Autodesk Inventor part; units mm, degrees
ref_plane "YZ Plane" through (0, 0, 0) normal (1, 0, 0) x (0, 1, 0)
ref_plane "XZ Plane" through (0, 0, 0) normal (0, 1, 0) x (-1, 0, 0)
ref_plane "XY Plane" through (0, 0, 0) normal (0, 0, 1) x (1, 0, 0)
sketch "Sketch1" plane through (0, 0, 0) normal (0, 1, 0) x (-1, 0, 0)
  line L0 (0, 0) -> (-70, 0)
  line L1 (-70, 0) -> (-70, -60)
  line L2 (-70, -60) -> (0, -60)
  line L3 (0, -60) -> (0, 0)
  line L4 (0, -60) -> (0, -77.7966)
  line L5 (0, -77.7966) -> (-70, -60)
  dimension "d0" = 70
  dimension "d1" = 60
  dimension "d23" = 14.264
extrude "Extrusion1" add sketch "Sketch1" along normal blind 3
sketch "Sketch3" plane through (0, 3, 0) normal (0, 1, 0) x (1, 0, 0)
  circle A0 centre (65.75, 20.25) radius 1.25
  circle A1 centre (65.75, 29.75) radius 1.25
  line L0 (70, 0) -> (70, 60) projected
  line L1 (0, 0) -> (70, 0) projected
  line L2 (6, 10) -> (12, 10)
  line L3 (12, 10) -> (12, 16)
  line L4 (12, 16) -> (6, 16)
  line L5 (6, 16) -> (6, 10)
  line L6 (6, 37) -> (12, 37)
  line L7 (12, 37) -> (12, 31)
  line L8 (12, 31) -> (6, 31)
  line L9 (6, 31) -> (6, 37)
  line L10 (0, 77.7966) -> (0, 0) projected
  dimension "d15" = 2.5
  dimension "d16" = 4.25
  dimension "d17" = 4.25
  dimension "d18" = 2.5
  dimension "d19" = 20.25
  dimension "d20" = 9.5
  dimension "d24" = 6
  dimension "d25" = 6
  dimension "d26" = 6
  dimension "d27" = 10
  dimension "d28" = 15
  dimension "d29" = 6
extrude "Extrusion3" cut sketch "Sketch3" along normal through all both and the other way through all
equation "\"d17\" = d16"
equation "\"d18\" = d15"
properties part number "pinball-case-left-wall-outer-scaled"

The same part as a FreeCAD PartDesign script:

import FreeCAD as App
import Part
import Sketcher
Q = App.Units.Quantity

doc = App.newDocument("Part")
body = doc.addObject("PartDesign::Body", "Body")

sketch1 = doc.addObject("Sketcher::SketchObject", "Sketch")
body.addObject(sketch1)
sketch1.AttachmentSupport = (doc.XZ_Plane, [""])
sketch1.MapMode = "FlatFace"
sketch1.addGeometry([
    Part.LineSegment(App.Vector(0, 0, 0), App.Vector(70, 0, 0)),
    Part.LineSegment(App.Vector(70, 0, 0), App.Vector(70, -60, 0)),
    Part.LineSegment(App.Vector(70, -60, 0), App.Vector(0, -78, 0)),
    Part.LineSegment(App.Vector(0, -78, 0), App.Vector(0, 0, 0)),
], False)
sketch1.addConstraint([
    Sketcher.Constraint("Coincident", 0, 2, 1, 1),
    Sketcher.Constraint("Coincident", 1, 2, 2, 1),
    Sketcher.Constraint("Coincident", 2, 2, 3, 1),
    Sketcher.Constraint("Coincident", 3, 2, 0, 1),
    Sketcher.Constraint("Horizontal", 0),
    Sketcher.Constraint("Vertical", 1),
    Sketcher.Constraint("Vertical", 3),
    Sketcher.Constraint("Coincident", 3, 2, -1, 1),
    Sketcher.Constraint("DistanceX", 0, 1, 0, 2, Q("70 mm")),
    Sketcher.Constraint("DistanceY", 1, 2, 1, 1, Q("60 mm")),
    Sketcher.Constraint("DistanceY", 3, 1, 3, 2, Q("77.7966 mm")),
])
pad1 = doc.addObject("PartDesign::Pad", "Pad")
body.addObject(pad1)
pad1.Profile = sketch1
pad1.Length = 3
pad1.Reversed = True

sketch2 = doc.addObject("Sketcher::SketchObject", "Sketch001")
body.addObject(sketch2)
sketch2.AttachmentSupport = (doc.XZ_Plane, [""])
sketch2.MapMode = "FlatFace"
sketch2.AttachmentOffset = App.Placement(App.Vector(0, 0, -3), App.Rotation())
sketch2.addGeometry([
    Part.Circle(App.Vector(65.8, -20.2, 0), App.Vector(0, 0, 1), 1.2),
    Part.Circle(App.Vector(65.8, -29.8, 0), App.Vector(0, 0, 1), 1.2),
    Part.LineSegment(App.Vector(6, -16, 0), App.Vector(6, -10, 0)),
    Part.LineSegment(App.Vector(6, -10, 0), App.Vector(12, -10, 0)),
    Part.LineSegment(App.Vector(12, -10, 0), App.Vector(12, -16, 0)),
    Part.LineSegment(App.Vector(12, -16, 0), App.Vector(6, -16, 0)),
    Part.LineSegment(App.Vector(12, -37, 0), App.Vector(6, -37, 0)),
    Part.LineSegment(App.Vector(6, -37, 0), App.Vector(6, -31, 0)),
    Part.LineSegment(App.Vector(6, -31, 0), App.Vector(12, -31, 0)),
    Part.LineSegment(App.Vector(12, -31, 0), App.Vector(12, -37, 0)),
], False)
sketch2.addConstraint([
    Sketcher.Constraint("Coincident", 2, 2, 3, 1),
    Sketcher.Constraint("Coincident", 3, 2, 4, 1),
    Sketcher.Constraint("Coincident", 4, 2, 5, 1),
    Sketcher.Constraint("Coincident", 5, 2, 2, 1),
    Sketcher.Constraint("Coincident", 6, 2, 7, 1),
    Sketcher.Constraint("Coincident", 7, 2, 8, 1),
    Sketcher.Constraint("Coincident", 8, 2, 9, 1),
    Sketcher.Constraint("Coincident", 9, 2, 6, 1),
    Sketcher.Constraint("Vertical", 2),
    Sketcher.Constraint("Horizontal", 3),
    Sketcher.Constraint("Vertical", 4),
    Sketcher.Constraint("Horizontal", 5),
    Sketcher.Constraint("Horizontal", 6),
    Sketcher.Constraint("Vertical", 7),
    Sketcher.Constraint("Horizontal", 8),
    Sketcher.Constraint("Vertical", 9),
    Sketcher.Constraint("Equal", 0, 1),
    Sketcher.Constraint("Vertical", 0, 3, 1, 3),
    Sketcher.Constraint("Vertical", 5, 2, 6, 2),
    Sketcher.Constraint("Vertical", 4, 2, 8, 2),
    Sketcher.Constraint("Equal", 8, 2),
    Sketcher.Constraint("Equal", 4, 7),
    Sketcher.Constraint("Diameter", 0, Q("2.5 mm")),
    Sketcher.Constraint("DistanceX", 3, 1, 3, 2, Q("6 mm")),
    Sketcher.Constraint("DistanceX", -1, 1, 2, 2, Q("6 mm")),
    Sketcher.Constraint("DistanceY", 2, 2, -1, 1, Q("10 mm")),
    Sketcher.Constraint("DistanceY", 7, 2, 5, 2, Q("15 mm")),
    Sketcher.Constraint("DistanceY", 1, 3, 0, 3, Q("9.5 mm")),
    Sketcher.Constraint("DistanceY", 0, 3, -1, 1, Q("20.25 mm")),
    Sketcher.Constraint("DistanceX", -1, 1, 0, 3, Q("65.75 mm")),
])
pocket1 = doc.addObject("PartDesign::Pocket", "Pocket")
body.addObject(pocket1)
pocket1.Profile = sketch2
pocket1.Type = "ThroughAll"
pocket1.Midplane = True

doc.recompute()
